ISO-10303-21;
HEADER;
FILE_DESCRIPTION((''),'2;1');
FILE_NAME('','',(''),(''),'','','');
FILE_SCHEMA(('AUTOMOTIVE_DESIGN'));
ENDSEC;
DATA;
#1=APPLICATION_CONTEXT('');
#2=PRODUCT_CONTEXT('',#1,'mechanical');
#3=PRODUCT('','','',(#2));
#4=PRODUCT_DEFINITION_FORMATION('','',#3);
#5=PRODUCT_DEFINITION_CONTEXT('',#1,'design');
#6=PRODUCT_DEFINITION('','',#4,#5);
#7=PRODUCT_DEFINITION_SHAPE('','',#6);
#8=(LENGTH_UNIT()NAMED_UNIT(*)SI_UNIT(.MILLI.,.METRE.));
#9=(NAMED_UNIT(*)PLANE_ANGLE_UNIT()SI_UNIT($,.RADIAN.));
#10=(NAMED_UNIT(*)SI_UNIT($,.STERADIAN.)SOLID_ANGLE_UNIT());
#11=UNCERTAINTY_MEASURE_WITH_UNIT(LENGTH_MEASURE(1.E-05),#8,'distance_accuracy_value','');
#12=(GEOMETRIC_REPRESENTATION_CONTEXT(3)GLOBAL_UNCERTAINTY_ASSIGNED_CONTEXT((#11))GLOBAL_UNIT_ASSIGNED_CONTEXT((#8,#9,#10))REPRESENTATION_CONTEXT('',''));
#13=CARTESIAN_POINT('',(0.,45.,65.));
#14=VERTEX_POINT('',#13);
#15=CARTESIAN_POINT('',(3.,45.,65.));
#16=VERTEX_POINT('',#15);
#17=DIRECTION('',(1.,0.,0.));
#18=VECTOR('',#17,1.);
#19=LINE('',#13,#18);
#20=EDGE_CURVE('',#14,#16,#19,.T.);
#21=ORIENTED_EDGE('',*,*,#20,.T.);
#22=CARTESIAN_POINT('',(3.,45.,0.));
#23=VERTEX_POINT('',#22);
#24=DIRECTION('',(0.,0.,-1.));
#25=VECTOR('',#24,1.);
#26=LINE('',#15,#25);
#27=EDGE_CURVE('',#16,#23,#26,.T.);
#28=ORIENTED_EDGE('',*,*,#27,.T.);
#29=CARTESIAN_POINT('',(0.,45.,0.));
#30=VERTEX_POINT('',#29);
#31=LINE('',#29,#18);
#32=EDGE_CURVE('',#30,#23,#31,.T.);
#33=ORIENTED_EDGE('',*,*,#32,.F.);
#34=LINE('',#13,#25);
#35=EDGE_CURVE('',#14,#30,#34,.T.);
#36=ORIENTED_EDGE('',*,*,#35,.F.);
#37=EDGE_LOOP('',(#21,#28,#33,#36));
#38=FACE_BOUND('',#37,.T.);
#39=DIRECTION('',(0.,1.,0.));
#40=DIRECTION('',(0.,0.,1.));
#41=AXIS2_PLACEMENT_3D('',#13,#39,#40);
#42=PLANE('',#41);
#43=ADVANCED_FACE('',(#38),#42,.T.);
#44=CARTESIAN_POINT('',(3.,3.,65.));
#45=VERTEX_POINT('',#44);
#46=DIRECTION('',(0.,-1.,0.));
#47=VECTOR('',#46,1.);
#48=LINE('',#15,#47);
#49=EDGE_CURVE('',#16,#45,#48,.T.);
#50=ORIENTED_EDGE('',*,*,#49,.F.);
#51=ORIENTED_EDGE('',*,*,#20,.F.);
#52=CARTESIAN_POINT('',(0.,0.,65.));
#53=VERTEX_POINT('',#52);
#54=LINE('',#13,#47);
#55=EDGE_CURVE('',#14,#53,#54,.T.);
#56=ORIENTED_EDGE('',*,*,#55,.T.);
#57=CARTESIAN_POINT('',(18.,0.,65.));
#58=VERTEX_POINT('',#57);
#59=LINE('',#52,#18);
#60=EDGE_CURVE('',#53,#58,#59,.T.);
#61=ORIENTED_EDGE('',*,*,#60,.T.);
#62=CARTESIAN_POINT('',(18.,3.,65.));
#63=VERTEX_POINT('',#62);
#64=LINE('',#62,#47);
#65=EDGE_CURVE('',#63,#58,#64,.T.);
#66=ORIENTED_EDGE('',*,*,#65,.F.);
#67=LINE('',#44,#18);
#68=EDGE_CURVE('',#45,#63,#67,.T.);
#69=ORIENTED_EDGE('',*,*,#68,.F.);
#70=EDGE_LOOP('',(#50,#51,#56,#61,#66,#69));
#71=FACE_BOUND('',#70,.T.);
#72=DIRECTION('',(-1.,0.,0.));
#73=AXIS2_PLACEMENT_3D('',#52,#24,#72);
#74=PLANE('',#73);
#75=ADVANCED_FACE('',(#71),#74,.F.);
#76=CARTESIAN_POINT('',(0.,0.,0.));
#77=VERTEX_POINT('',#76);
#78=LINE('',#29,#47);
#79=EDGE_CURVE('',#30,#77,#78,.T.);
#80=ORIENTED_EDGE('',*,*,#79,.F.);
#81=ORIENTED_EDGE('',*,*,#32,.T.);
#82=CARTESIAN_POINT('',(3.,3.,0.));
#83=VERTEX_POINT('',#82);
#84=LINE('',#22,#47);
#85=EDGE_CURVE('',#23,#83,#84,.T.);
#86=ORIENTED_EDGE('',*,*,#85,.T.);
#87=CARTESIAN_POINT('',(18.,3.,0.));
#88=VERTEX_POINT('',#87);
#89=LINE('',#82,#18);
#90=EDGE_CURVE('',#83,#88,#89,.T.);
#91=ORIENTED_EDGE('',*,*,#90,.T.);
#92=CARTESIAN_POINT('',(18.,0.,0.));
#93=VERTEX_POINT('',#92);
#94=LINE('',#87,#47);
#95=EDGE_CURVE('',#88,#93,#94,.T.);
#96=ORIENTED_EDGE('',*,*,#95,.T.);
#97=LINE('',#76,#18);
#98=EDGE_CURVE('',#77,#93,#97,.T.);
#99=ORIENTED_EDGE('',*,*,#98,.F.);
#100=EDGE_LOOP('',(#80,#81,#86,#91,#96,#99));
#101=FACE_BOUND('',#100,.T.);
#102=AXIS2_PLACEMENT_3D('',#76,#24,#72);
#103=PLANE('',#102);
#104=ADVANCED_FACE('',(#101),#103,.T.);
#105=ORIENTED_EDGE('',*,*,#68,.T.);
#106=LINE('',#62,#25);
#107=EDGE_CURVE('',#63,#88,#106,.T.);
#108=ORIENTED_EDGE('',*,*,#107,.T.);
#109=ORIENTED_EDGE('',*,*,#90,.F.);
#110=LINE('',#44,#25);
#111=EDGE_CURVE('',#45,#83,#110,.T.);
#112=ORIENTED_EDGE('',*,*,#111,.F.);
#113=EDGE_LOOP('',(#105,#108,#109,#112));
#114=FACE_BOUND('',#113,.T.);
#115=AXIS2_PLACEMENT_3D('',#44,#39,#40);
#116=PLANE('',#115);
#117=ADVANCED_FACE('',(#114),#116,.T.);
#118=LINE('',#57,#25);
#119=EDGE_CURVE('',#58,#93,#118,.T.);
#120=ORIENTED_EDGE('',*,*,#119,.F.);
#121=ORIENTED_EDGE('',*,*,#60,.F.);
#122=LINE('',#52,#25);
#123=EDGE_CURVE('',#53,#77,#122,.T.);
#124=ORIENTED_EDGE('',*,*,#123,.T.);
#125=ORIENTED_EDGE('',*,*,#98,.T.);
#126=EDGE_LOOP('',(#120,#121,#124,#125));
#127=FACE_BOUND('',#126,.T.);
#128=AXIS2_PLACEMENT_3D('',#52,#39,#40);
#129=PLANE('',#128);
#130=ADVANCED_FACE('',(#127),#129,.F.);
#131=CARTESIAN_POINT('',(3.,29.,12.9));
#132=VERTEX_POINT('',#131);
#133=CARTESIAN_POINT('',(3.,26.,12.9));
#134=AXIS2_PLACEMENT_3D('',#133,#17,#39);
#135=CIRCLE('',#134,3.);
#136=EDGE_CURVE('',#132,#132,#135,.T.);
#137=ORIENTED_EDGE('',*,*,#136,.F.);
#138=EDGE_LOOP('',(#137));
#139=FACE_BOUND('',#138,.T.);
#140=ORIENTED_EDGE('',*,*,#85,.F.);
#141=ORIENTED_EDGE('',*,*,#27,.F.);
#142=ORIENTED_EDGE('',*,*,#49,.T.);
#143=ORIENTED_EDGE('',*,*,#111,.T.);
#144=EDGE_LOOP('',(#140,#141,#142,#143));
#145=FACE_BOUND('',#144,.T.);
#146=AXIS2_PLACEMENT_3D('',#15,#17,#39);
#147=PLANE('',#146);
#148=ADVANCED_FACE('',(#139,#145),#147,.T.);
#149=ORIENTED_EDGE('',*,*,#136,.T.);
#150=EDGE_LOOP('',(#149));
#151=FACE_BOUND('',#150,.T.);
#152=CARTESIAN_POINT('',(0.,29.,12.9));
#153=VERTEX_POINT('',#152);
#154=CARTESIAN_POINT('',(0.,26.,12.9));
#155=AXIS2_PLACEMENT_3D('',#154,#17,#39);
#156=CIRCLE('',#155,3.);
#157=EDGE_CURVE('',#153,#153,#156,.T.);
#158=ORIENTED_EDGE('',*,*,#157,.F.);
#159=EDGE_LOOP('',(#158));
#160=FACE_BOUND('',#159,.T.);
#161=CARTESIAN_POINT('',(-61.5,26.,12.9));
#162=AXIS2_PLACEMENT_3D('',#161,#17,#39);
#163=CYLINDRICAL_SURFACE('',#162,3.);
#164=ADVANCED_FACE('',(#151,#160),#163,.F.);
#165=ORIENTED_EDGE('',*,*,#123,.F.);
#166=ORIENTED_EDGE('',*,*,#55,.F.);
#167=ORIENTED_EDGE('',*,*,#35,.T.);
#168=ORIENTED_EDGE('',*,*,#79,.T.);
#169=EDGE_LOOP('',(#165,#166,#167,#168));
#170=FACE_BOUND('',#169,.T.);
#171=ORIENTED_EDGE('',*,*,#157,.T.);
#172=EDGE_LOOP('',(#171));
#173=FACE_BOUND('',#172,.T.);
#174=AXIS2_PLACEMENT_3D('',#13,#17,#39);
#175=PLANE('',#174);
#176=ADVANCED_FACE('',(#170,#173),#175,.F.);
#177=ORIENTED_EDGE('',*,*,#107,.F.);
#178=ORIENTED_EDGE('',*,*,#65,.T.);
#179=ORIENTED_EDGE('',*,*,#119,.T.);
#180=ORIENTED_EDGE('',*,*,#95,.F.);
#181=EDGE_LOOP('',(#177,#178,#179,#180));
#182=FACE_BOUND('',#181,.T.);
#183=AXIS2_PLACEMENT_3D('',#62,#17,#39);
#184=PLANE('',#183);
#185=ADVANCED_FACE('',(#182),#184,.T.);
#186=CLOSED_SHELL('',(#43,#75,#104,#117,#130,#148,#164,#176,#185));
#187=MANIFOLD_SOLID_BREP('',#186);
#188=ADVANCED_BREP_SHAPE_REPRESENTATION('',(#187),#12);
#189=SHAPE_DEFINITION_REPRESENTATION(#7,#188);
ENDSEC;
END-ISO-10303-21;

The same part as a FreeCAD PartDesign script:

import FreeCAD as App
import Part
import Sketcher


def add_polygon(sketch, points):
    """Adds a closed chain of lines whose ends are joined by coincident constraints."""
    first, n = sketch.GeometryCount, len(points)
    for a, b in zip(points, points[1:] + points[:1]):
        sketch.addGeometry(Part.LineSegment(App.Vector(*a, 0), App.Vector(*b, 0)), False)
    for i in range(n):
        sketch.addConstraint(Sketcher.Constraint("Coincident", first + i, 2, first + (i + 1) % n, 1))

doc = App.newDocument("Part")
params = doc.addObject("Spreadsheet::Sheet", "Params")
for row, (alias, value) in enumerate([
    ("sketch1_width", "3 mm"),
    ("sketch1_width2", "18 mm"),
    ("sketch1_height", "45 mm"),
    ("pad1_length", "65 mm"),
    ("sketch2_diameter", "6 mm"),
    ("pocket1_length", "64.5 mm"),
], start=1):
    params.set(f"A{row}", alias)
    params.set(f"B{row}", "=" + value)
    params.setAlias(f"B{row}", alias)

body = doc.addObject("PartDesign::Body", "Body")

# Sketch on XY plane
sketch1 = body.newObject("Sketcher::SketchObject", "Sketch")
sketch1.AttachmentSupport = (doc.getObject("XY_Plane"), [""])
sketch1.MapMode = "FlatFace"
add_polygon(sketch1, [(3, 45), (0, 45), (0, 0), (18, 0), (18, 3), (3, 3)])  # lines 0-5
sketch1.addConstraint([
    Sketcher.Constraint("Horizontal", 0),
    Sketcher.Constraint("Vertical", 1),
    Sketcher.Constraint("Horizontal", 2),
    Sketcher.Constraint("Vertical", 3),
    Sketcher.Constraint("Horizontal", 4),
    Sketcher.Constraint("Vertical", 5),
    Sketcher.Constraint("Coincident", 1, 2, -1, 1),
    Sketcher.Constraint("Equal", 0, 3),
    Sketcher.Constraint("DistanceX", 0, 2, 0, 1, 3.0),
    Sketcher.Constraint("DistanceX", 2, 1, 2, 2, 18.0),
    Sketcher.Constraint("DistanceY", 1, 2, 1, 1, 45.0),
])
sketch1.setExpression("Constraints[14]", "Params.sketch1_width")
sketch1.setExpression("Constraints[15]", "Params.sketch1_width2")
sketch1.setExpression("Constraints[16]", "Params.sketch1_height")
pad1 = body.newObject("PartDesign::Pad", "Pad")
pad1.Profile = sketch1
pad1.setExpression("Length", "Params.pad1_length")

# Sketch on YZ plane
sketch2 = body.newObject("Sketcher::SketchObject", "Sketch001")
sketch2.AttachmentSupport = (doc.getObject("YZ_Plane"), [""])
sketch2.MapMode = "FlatFace"
sketch2.AttachmentOffset = App.Placement(App.Vector(0, 0, 3), App.Rotation())
sketch2.addGeometry(Part.Circle(App.Vector(26, 12.9, 0), App.Vector(0, 0, 1), 3), False)
sketch2.addConstraint([
    Sketcher.Constraint("Diameter", 0, 6.0),
    Sketcher.Constraint("DistanceX", -1, 1, 0, 3, 26.0),
    Sketcher.Constraint("DistanceY", -1, 1, 0, 3, 12.9),
])
sketch2.setExpression("Constraints[0]", "Params.sketch2_diameter")
pocket1 = body.newObject("PartDesign::Pocket", "Pocket")
pocket1.Profile = sketch2
pocket1.setExpression("Length", "Params.pocket1_length")

doc.recompute()
